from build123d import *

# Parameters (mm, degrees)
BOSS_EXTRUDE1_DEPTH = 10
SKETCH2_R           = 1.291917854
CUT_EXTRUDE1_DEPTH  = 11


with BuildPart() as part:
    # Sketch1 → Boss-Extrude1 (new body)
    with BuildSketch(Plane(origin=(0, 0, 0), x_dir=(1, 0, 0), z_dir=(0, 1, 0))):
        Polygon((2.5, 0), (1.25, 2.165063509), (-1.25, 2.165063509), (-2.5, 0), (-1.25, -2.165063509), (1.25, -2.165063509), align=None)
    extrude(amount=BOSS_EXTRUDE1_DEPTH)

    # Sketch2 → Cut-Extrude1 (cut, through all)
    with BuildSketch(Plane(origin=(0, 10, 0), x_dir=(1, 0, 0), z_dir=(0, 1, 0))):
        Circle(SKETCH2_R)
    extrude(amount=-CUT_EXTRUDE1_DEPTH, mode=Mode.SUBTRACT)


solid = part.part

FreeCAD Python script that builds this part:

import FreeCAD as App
import Part
import Sketcher

V = App.Vector
Q = App.Units.Quantity

doc = App.newDocument("Part")
body = doc.addObject("PartDesign::Body", "Body")

# Sketch on XZ plane
sketch1 = doc.addObject("Sketcher::SketchObject", "Sketch")
body.addObject(sketch1)
sketch1.AttachmentSupport = (doc.XZ_Plane, [""])
sketch1.MapMode = "FlatFace"
sketch1.addGeometry([
    Part.LineSegment(V(2.5, 0, 0), V(1.2, -2.2, 0)),  # 0
    Part.LineSegment(V(1.2, -2.2, 0), V(-1.2, -2.2, 0)),  # 1
    Part.LineSegment(V(-1.2, -2.2, 0), V(-2.5, 0, 0)),  # 2
    Part.LineSegment(V(-2.5, 0, 0), V(-1.2, 2.2, 0)),  # 3
    Part.LineSegment(V(-1.2, 2.2, 0), V(1.2, 2.2, 0)),  # 4
    Part.LineSegment(V(1.2, 2.2, 0), V(2.5, 0, 0)),  # 5
], False)
sketch1.addConstraint([
    Sketcher.Constraint("Coincident", 0, 2, 1, 1),
    Sketcher.Constraint("Coincident", 1, 2, 2, 1),
    Sketcher.Constraint("Coincident", 2, 2, 3, 1),
    Sketcher.Constraint("Coincident", 3, 2, 4, 1),
    Sketcher.Constraint("Coincident", 4, 2, 5, 1),
    Sketcher.Constraint("Coincident", 5, 2, 0, 1),
    Sketcher.Constraint("Horizontal", 1),
    Sketcher.Constraint("Horizontal", 4),
    Sketcher.Constraint("Symmetric", 0, 2, 3, 2, -1, 1),
    Sketcher.Constraint("Symmetric", 2, 2, 5, 2, -1, 1),
    Sketcher.Constraint("PointOnObject", 2, 2, -1),
    Sketcher.Constraint("Parallel", 2, 5),
    Sketcher.Constraint("Vertical", 1, 2, 3, 2),
    Sketcher.Constraint("Angle", 0, Q("-120 deg")),
    Sketcher.Constraint("DistanceX", 1, 2, 1, 1, 2.5),
    Sketcher.Constraint("DistanceX", 2, 2, 5, 2, 5.0),
])
pad1 = doc.addObject("PartDesign::Pad", "Pad")
body.addObject(pad1)
pad1.Profile = sketch1
pad1.Length = 10
pad1.Reversed = True

# Sketch on XZ plane
sketch2 = doc.addObject("Sketcher::SketchObject", "Sketch001")
body.addObject(sketch2)
sketch2.AttachmentSupport = (doc.XZ_Plane, [""])
sketch2.MapMode = "FlatFace"
sketch2.AttachmentOffset = App.Placement(V(0, 0, -10), App.Rotation())
sketch2.addGeometry(Part.Circle(V(0, 0, 0), V(0, 0, 1), 1.3), False)
sketch2.addConstraint([
    Sketcher.Constraint("Coincident", 0, 3, -1, 1),
    Sketcher.Constraint("Diameter", 0, 2.583836),
])
pocket1 = doc.addObject("PartDesign::Pocket", "Pocket")
body.addObject(pocket1)
pocket1.Profile = sketch2
pocket1.Type = "ThroughAll"
pocket1.Reversed = True

doc.recompute()
